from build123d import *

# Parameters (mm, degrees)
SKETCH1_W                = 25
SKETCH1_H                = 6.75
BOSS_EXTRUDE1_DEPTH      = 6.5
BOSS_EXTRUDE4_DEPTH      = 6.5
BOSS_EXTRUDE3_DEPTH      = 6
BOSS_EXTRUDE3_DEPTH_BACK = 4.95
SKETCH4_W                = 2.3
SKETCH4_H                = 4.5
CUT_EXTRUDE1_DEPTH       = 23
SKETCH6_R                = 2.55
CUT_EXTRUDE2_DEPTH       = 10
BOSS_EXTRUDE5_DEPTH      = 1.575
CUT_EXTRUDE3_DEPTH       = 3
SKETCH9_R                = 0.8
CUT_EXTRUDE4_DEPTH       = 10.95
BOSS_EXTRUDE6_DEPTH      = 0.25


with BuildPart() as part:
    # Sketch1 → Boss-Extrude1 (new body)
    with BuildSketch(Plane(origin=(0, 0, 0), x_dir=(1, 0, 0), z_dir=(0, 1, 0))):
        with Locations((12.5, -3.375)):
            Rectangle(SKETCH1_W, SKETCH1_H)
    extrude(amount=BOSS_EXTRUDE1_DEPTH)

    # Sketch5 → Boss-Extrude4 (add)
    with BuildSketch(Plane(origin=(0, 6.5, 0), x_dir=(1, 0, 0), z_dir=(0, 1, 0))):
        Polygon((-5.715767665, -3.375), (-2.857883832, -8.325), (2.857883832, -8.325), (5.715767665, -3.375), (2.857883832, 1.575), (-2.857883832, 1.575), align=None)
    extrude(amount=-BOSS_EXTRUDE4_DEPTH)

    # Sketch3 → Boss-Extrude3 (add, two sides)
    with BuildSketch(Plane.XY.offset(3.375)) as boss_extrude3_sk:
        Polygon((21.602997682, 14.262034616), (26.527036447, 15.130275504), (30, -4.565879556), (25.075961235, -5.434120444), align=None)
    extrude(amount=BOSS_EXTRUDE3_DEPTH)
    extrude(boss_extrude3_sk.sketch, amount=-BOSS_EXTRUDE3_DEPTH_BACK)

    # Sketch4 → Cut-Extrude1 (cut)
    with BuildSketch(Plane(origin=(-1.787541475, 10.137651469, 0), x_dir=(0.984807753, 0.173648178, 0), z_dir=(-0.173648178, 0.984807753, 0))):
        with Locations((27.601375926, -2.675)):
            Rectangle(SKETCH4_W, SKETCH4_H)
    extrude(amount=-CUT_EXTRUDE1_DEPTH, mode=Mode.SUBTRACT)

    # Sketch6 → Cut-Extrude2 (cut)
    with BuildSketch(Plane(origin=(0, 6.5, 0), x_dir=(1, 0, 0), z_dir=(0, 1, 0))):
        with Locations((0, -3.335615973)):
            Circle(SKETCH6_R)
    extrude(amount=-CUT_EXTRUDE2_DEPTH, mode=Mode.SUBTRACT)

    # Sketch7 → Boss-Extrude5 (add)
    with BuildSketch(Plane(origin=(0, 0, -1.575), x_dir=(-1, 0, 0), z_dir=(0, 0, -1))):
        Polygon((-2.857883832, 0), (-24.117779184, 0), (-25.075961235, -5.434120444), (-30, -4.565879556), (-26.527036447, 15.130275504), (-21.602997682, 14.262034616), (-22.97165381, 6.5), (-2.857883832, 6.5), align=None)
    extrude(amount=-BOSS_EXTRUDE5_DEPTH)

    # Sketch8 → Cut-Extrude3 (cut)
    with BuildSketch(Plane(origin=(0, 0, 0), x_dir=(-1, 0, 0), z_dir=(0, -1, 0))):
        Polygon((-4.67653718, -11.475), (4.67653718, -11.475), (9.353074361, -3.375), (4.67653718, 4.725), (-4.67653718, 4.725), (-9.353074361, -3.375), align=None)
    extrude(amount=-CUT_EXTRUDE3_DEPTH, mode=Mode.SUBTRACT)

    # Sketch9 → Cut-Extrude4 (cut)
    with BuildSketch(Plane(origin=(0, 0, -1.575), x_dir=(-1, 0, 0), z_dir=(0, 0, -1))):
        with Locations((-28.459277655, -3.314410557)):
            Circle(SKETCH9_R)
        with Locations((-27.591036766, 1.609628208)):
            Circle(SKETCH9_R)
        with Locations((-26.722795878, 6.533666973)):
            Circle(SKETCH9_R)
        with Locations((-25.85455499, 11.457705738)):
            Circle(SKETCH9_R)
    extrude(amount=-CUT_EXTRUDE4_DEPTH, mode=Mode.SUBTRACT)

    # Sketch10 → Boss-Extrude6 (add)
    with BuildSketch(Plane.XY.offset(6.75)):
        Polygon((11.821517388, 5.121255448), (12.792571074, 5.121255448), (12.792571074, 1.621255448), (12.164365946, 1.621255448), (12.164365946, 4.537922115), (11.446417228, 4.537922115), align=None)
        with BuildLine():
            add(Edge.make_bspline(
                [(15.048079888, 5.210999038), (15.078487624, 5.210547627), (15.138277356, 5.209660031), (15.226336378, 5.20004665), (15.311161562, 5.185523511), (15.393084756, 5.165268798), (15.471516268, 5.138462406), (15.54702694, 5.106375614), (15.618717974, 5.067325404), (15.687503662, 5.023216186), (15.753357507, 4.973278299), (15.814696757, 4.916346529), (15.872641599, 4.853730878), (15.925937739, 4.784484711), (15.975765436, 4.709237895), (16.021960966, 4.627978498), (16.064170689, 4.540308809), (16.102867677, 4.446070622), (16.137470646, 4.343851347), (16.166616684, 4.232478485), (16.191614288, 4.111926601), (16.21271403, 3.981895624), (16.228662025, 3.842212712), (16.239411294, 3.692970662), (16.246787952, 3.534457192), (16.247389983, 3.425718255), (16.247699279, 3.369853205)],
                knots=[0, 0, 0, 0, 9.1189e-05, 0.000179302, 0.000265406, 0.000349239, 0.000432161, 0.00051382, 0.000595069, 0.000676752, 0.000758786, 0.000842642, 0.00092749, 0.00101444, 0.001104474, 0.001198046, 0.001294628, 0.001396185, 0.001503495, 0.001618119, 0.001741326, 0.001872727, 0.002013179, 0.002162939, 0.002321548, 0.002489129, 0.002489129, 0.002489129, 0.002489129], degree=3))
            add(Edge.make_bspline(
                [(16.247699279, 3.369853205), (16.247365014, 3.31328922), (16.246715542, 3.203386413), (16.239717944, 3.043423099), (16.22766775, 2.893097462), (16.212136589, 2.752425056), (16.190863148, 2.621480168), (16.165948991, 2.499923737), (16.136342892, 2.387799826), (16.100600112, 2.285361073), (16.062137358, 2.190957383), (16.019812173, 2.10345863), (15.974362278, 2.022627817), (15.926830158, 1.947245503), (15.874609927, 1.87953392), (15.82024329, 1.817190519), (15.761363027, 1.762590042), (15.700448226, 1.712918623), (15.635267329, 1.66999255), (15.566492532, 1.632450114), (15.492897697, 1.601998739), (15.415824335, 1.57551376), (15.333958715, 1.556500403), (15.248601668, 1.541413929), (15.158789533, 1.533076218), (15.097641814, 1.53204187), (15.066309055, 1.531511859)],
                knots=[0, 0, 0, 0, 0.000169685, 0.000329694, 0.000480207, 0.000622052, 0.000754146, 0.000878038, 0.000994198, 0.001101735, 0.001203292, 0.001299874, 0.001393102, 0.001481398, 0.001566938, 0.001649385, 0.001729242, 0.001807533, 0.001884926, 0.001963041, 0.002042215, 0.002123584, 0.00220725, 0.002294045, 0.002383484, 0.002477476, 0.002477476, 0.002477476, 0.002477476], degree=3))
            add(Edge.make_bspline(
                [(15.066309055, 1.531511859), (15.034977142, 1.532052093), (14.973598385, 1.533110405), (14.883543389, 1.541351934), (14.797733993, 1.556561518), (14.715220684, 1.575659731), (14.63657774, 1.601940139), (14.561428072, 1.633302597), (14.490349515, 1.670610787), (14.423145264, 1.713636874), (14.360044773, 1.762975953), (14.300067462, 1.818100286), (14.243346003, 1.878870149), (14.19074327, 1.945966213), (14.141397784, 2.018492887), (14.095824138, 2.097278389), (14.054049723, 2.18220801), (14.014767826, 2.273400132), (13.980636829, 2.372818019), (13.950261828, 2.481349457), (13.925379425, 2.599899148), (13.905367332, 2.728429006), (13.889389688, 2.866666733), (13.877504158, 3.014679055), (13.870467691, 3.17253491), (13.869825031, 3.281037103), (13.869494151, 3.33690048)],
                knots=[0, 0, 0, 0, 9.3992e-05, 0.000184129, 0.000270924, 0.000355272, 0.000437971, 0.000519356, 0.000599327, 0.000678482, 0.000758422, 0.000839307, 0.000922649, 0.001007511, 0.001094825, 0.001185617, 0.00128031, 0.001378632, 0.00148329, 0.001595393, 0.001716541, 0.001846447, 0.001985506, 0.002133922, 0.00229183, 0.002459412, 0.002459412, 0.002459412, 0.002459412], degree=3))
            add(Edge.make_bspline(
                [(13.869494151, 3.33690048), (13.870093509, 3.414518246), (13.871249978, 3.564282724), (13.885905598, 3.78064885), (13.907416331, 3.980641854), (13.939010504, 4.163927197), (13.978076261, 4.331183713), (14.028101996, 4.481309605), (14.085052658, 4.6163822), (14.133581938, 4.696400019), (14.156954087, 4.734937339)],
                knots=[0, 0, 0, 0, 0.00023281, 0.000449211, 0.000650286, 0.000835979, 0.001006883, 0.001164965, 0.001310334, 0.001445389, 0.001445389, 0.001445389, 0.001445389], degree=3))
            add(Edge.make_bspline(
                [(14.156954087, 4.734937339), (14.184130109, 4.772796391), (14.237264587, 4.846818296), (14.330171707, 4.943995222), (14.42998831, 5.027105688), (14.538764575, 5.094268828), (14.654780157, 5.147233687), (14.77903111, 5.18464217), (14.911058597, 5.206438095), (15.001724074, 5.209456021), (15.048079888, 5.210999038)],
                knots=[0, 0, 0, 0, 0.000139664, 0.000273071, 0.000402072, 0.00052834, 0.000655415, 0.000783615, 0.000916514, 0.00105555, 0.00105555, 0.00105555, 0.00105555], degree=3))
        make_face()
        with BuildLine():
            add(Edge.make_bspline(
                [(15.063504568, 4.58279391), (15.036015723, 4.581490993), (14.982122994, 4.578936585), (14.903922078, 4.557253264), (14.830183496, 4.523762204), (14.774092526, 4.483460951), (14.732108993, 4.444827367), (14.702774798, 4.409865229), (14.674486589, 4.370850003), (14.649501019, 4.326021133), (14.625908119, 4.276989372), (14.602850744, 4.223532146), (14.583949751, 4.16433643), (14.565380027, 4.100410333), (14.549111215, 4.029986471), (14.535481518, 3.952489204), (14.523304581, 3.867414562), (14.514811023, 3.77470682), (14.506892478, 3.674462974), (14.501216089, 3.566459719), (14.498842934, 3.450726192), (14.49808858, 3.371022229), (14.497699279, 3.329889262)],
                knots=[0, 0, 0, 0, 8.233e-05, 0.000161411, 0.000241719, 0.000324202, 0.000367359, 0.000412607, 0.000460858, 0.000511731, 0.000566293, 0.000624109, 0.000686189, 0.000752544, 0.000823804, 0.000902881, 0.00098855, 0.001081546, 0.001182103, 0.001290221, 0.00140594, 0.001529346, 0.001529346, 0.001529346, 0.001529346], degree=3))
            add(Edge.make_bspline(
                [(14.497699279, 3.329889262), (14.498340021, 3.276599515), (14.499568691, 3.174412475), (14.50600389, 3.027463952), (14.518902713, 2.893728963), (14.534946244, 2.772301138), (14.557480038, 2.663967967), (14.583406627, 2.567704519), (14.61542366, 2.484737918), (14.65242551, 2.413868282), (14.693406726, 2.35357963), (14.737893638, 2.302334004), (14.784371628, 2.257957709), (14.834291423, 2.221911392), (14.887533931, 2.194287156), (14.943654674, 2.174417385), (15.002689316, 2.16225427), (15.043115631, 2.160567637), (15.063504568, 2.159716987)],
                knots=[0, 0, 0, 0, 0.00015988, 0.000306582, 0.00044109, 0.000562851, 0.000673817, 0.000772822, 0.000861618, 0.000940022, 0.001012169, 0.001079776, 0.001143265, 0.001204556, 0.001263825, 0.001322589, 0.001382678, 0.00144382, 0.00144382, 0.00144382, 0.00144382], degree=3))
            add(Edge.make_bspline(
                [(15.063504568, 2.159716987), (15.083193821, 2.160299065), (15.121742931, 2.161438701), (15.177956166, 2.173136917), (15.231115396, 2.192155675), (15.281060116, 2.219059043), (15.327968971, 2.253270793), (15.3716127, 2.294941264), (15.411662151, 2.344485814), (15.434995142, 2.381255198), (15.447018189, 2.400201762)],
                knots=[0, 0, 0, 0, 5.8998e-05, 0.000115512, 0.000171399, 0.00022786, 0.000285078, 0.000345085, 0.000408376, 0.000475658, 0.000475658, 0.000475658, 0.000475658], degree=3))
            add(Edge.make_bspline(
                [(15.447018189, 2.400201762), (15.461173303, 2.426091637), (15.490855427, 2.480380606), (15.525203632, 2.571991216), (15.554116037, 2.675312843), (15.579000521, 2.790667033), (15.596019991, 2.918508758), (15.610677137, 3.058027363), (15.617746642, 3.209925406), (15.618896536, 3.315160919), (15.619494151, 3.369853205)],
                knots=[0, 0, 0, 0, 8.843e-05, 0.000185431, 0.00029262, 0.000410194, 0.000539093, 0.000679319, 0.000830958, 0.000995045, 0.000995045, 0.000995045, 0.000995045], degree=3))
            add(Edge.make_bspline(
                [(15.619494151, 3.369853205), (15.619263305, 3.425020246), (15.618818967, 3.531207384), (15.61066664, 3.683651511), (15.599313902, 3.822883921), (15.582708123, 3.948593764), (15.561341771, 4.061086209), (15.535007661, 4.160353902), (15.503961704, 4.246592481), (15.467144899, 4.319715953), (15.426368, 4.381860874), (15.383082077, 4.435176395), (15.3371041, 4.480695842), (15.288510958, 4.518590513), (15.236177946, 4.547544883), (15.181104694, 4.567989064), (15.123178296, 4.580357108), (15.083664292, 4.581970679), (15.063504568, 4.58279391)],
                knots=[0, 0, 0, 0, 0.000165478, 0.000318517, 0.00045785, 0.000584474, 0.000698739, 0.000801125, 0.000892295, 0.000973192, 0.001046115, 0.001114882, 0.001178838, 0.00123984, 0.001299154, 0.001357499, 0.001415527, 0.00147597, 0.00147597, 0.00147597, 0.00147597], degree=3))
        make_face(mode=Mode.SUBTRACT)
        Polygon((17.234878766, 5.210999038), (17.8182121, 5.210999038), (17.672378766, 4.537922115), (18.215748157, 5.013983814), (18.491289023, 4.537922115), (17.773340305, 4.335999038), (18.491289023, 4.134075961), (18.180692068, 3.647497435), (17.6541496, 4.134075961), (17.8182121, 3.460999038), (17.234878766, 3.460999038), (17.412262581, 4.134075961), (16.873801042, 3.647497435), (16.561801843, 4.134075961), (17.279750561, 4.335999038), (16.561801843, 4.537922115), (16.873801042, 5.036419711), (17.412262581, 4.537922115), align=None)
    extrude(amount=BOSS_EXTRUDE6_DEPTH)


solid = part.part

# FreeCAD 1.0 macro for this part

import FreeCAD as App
import Part
import Sketcher

V = App.Vector
Q = App.Units.Quantity

doc = App.newDocument("Part")
body = doc.addObject("PartDesign::Body", "Body")

# Sketch on XZ plane
sketch1 = body.newObject("Sketcher::SketchObject", "Sketch")
sketch1.AttachmentSupport = (doc.getObject("XZ_Plane"), [""])
sketch1.MapMode = "FlatFace"
sketch1.addGeometry([
    Part.LineSegment(V(0, 0, 0), V(0, 7, 0)),
    Part.LineSegment(V(0, 7, 0), V(25, 7, 0)),
    Part.LineSegment(V(25, 7, 0), V(25, 0, 0)),
    Part.LineSegment(V(25, 0, 0), V(0, 0, 0)),
], False)
sketch1.addConstraint([
    Sketcher.Constraint("Coincident", 0, 2, 1, 1),
    Sketcher.Constraint("Coincident", 1, 2, 2, 1),
    Sketcher.Constraint("Coincident", 2, 2, 3, 1),
    Sketcher.Constraint("Coincident", 3, 2, 0, 1),
    Sketcher.Constraint("Vertical", 0),
    Sketcher.Constraint("Horizontal", 1),
    Sketcher.Constraint("Vertical", 2),
    Sketcher.Constraint("Horizontal", 3),
    Sketcher.Constraint("Coincident", 3, 2, -1, 1),
    Sketcher.Constraint("DistanceX", 1, 1, 1, 2, 25.0),
    Sketcher.Constraint("DistanceY", 0, 1, 0, 2, 6.75),
])
pad1 = body.newObject("PartDesign::Pad", "Pad")
pad1.Profile = sketch1
pad1.Length = 6.5
pad1.Reversed = True

# Sketch on XZ plane
sketch2 = body.newObject("Sketcher::SketchObject", "Sketch001")
sketch2.AttachmentSupport = (doc.getObject("XZ_Plane"), [""])
sketch2.MapMode = "FlatFace"
sketch2.AttachmentOffset = App.Placement(V(0, 0, -6.5), App.Rotation())
sketch2.addGeometry([
    Part.LineSegment(V(-6, 3, 0), V(-3, 8, 0)),  # 0
    Part.LineSegment(V(-3, 8, 0), V(3, 8, 0)),  # 1
    Part.LineSegment(V(3, 8, 0), V(6, 3, 0)),  # 2
    Part.LineSegment(V(6, 3, 0), V(3, -2, 0)),  # 3
    Part.LineSegment(V(3, -2, 0), V(-3, -2, 0)),  # 4
    Part.LineSegment(V(-3, -2, 0), V(-6, 3, 0)),  # 5
], False)
sketch2.addConstraint([
    Sketcher.Constraint("Coincident", 0, 2, 1, 1),
    Sketcher.Constraint("Coincident", 1, 2, 2, 1),
    Sketcher.Constraint("Coincident", 2, 2, 3, 1),
    Sketcher.Constraint("Coincident", 3, 2, 4, 1),
    Sketcher.Constraint("Coincident", 4, 2, 5, 1),
    Sketcher.Constraint("Coincident", 5, 2, 0, 1),
    Sketcher.Constraint("Horizontal", 1),
    Sketcher.Constraint("Horizontal", 4),
    Sketcher.Constraint("Symmetric", 2, 2, 5, 2, -2),
    Sketcher.Constraint("Parallel", 0, 3),
    Sketcher.Constraint("Parallel", 2, 5),
    Sketcher.Constraint("Vertical", 1, 2, 3, 2),
    Sketcher.Constraint("Vertical", 0, 2, 4, 2),
    Sketcher.Constraint("Angle", 0, Q("60 deg")),
    Sketcher.Constraint("DistanceY", 3, 2, 1, 2, 9.9),
    Sketcher.Constraint("DistanceY", -1, 1, 0, 2, 8.325),
    Sketcher.Constraint("DistanceX", 1, 1, 1, 2, 5.715768),
])
pad2 = body.newObject("PartDesign::Pad", "Pad001")
pad2.Profile = sketch2
pad2.Length = 6.5

# Sketch on XY plane
sketch3 = body.newObject("Sketcher::SketchObject", "Sketch002")
sketch3.AttachmentSupport = (doc.getObject("XY_Plane"), [""])
sketch3.MapMode = "FlatFace"
sketch3.AttachmentOffset = App.Placement(V(0, 0, 3.375), App.Rotation())
sketch3.addGeometry([
    Part.LineSegment(V(26.5, 15.1, 0), V(21.6, 14.3, 0)),
    Part.LineSegment(V(21.6, 14.3, 0), V(25.1, -5.4, 0)),
    Part.LineSegment(V(25.1, -5.4, 0), V(30, -4.6, 0)),
    Part.LineSegment(V(30, -4.6, 0), V(26.5, 15.1, 0)),
], False)
sketch3.addConstraint([
    Sketcher.Constraint("Coincident", 0, 2, 1, 1),
    Sketcher.Constraint("Coincident", 1, 2, 2, 1),
    Sketcher.Constraint("Coincident", 2, 2, 3, 1),
    Sketcher.Constraint("Coincident", 3, 2, 0, 1),
    Sketcher.Constraint("Perpendicular", 0, 1),
    Sketcher.Constraint("Perpendicular", 1, 2),
    Sketcher.Constraint("Perpendicular", 2, 3),
    Sketcher.Constraint("Angle", 0, Q("-170 deg")),
    Sketcher.Constraint("Distance", 0, 5.0),
    Sketcher.Constraint("Distance", 1, 20.0),
    Sketcher.Constraint("DistanceX", -1, 1, 2, 2, 30.0),
    Sketcher.Constraint("DistanceY", 1, 2, -1, 1, 5.43412),
])
pad3 = body.newObject("PartDesign::Pad", "Pad002")
pad3.Profile = sketch3
pad3.Type = "TwoLengths"
pad3.Length = 6
pad3.Length2 = 4.95

# Sketch on an angled plane
sketch4 = body.newObject("Sketcher::SketchObject", "Sketch003")
sketch4.Placement = App.Placement(V(-1.787541, 10.137651, 0), App.Rotation(V(0.984807753, 0.173648178, 0), V(0, 0, -1), V(-0.173648178, 0.984807753, 0), "ZXY"))
sketch4.addGeometry([
    Part.LineSegment(V(26.5, -0.4, 0), V(26.5, -4.9, 0)),
    Part.LineSegment(V(26.5, -4.9, 0), V(28.8, -4.9, 0)),
    Part.LineSegment(V(28.8, -4.9, 0), V(28.8, -0.4, 0)),
    Part.LineSegment(V(28.8, -0.4, 0), V(26.5, -0.4, 0)),
], False)
sketch4.addConstraint([
    Sketcher.Constraint("Coincident", 0, 2, 1, 1),
    Sketcher.Constraint("Coincident", 1, 2, 2, 1),
    Sketcher.Constraint("Coincident", 2, 2, 3, 1),
    Sketcher.Constraint("Coincident", 3, 2, 0, 1),
    Sketcher.Constraint("Vertical", 0),
    Sketcher.Constraint("Horizontal", 1),
    Sketcher.Constraint("Vertical", 2),
    Sketcher.Constraint("Horizontal", 3),
    Sketcher.Constraint("DistanceX", 1, 1, 1, 2, 2.3),
    Sketcher.Constraint("DistanceY", 0, 2, 0, 1, 4.5),
    Sketcher.Constraint("DistanceY", 0, 2, -1, 1, 4.925),
    Sketcher.Constraint("DistanceX", -1, 1, 0, 2, 26.451376),
])
pocket1 = body.newObject("PartDesign::Pocket", "Pocket")
pocket1.Profile = sketch4
pocket1.Length = 23

# Sketch on XZ plane
sketch5 = body.newObject("Sketcher::SketchObject", "Sketch004")
sketch5.AttachmentSupport = (doc.getObject("XZ_Plane"), [""])
sketch5.MapMode = "FlatFace"
sketch5.AttachmentOffset = App.Placement(V(0, 0, -6.5), App.Rotation())
sketch5.addGeometry(Part.Circle(V(0, 3.3, 0), V(0, 0, 1), 2.5), False)
sketch5.addConstraint([
    Sketcher.Constraint("PointOnObject", 0, 3, -2),
    Sketcher.Constraint("Diameter", 0, 5.1),
    Sketcher.Constraint("DistanceY", -1, 1, 0, 3, 3.335616),
])
pocket2 = body.newObject("PartDesign::Pocket", "Pocket001")
pocket2.Profile = sketch5
pocket2.Length = 10
pocket2.Reversed = True

# Sketch on XY plane
sketch6 = body.newObject("Sketcher::SketchObject", "Sketch005")
sketch6.AttachmentSupport = (doc.getObject("XY_Plane"), [""])
sketch6.MapMode = "FlatFace"
sketch6.AttachmentOffset = App.Placement(V(0, 0, -1.575), App.Rotation())
sketch6.addGeometry([
    Part.LineSegment(V(24.1, 0, 0), V(2.9, 0, 0)),  # 0
    Part.LineSegment(V(2.9, 0, 0), V(2.9, 6.5, 0)),  # 1
    Part.LineSegment(V(2.9, 6.5, 0), V(23, 6.5, 0)),  # 2
    Part.LineSegment(V(23, 6.5, 0), V(21.6, 14.3, 0)),  # 3
    Part.LineSegment(V(21.6, 14.3, 0), V(26.5, 15.1, 0)),  # 4
    Part.LineSegment(V(26.5, 15.1, 0), V(30, -4.6, 0)),  # 5
    Part.LineSegment(V(30, -4.6, 0), V(25.1, -5.4, 0)),  # 6
    Part.LineSegment(V(25.1, -5.4, 0), V(24.1, 0, 0)),  # 7
], False)
sketch6.addConstraint([
    Sketcher.Constraint("Coincident", 0, 2, 1, 1),
    Sketcher.Constraint("Coincident", 1, 2, 2, 1),
    Sketcher.Constraint("Coincident", 2, 2, 3, 1),
    Sketcher.Constraint("Coincident", 3, 2, 4, 1),
    Sketcher.Constraint("Coincident", 4, 2, 5, 1),
    Sketcher.Constraint("Coincident", 5, 2, 6, 1),
    Sketcher.Constraint("Coincident", 6, 2, 7, 1),
    Sketcher.Constraint("Coincident", 7, 2, 0, 1),
    Sketcher.Constraint("Horizontal", 0),
    Sketcher.Constraint("Vertical", 1),
    Sketcher.Constraint("Horizontal", 2),
    Sketcher.Constraint("PointOnObject", 0, 2, -1),
    Sketcher.Constraint("Perpendicular", 3, 4),
    Sketcher.Constraint("Perpendicular", 4, 5),
    Sketcher.Constraint("Perpendicular", 5, 6),
    Sketcher.Constraint("Perpendicular", 6, 7),
    Sketcher.Constraint("Equal", 4, 6),
    Sketcher.Constraint("Angle", 3, Q("100 deg")),
    Sketcher.Constraint("Distance", 4, 5.0),
    Sketcher.Constraint("Distance", 5, 20.0),
    Sketcher.Constraint("DistanceY", 1, 1, 1, 2, 6.5),
    Sketcher.Constraint("DistanceX", -1, 1, 5, 2, 30.0),
    Sketcher.Constraint("DistanceX", 2, 1, 2, 2, 20.11377),
    Sketcher.Constraint("Distance", 7, 5.517951),
])
pad4 = body.newObject("PartDesign::Pad", "Pad003")
pad4.Profile = sketch6
pad4.Length = 1.575

# Sketch on XZ plane
sketch7 = body.newObject("Sketcher::SketchObject", "Sketch006")
sketch7.AttachmentSupport = (doc.getObject("XZ_Plane"), [""])
sketch7.MapMode = "FlatFace"
sketch7.addGeometry([
    Part.LineSegment(V(5, 11, 0), V(-5, 11, 0)),  # 0
    Part.LineSegment(V(-5, 11, 0), V(-9, 3, 0)),  # 1
    Part.LineSegment(V(-9, 3, 0), V(-5, -5, 0)),  # 2
    Part.LineSegment(V(-5, -5, 0), V(5, -5, 0)),  # 3
    Part.LineSegment(V(5, -5, 0), V(9, 3, 0)),  # 4
    Part.LineSegment(V(9, 3, 0), V(5, 11, 0)),  # 5
], False)
sketch7.addConstraint([
    Sketcher.Constraint("Coincident", 0, 2, 1, 1),
    Sketcher.Constraint("Coincident", 1, 2, 2, 1),
    Sketcher.Constraint("Coincident", 2, 2, 3, 1),
    Sketcher.Constraint("Coincident", 3, 2, 4, 1),
    Sketcher.Constraint("Coincident", 4, 2, 5, 1),
    Sketcher.Constraint("Coincident", 5, 2, 0, 1),
    Sketcher.Constraint("Horizontal", 0),
    Sketcher.Constraint("Horizontal", 3),
    Sketcher.Constraint("Symmetric", 1, 2, 4, 2, -2),
    Sketcher.Constraint("Parallel", 1, 4),
    Sketcher.Constraint("Parallel", 2, 5),
    Sketcher.Constraint("Vertical", 0, 2, 2, 2),
    Sketcher.Constraint("Vertical", 3, 2, 5, 2),
    Sketcher.Constraint("Angle", 1, Q("-120 deg")),
    Sketcher.Constraint("DistanceY", 1, 2, 0, 2, 8.1),
    Sketcher.Constraint("DistanceY", -1, 1, 0, 2, 11.475),
    Sketcher.Constraint("DistanceX", 0, 2, 0, 1, 9.353074),
])
pocket3 = body.newObject("PartDesign::Pocket", "Pocket002")
pocket3.Profile = sketch7
pocket3.Length = 3

# Sketch on XY plane
sketch8 = body.newObject("Sketcher::SketchObject", "Sketch007")
sketch8.AttachmentSupport = (doc.getObject("XY_Plane"), [""])
sketch8.MapMode = "FlatFace"
sketch8.AttachmentOffset = App.Placement(V(0, 0, -1.575), App.Rotation())
sketch8.addGeometry([
    Part.Circle(V(28.5, -3.3, 0), V(0, 0, 1), 0.8),
    Part.Circle(V(27.6, 1.6, 0), V(0, 0, 1), 0.8),
    Part.Circle(V(26.7, 6.5, 0), V(0, 0, 1), 0.8),
    Part.Circle(V(25.9, 11.5, 0), V(0, 0, 1), 0.8),
], False)
sketch8.addConstraint([
    Sketcher.Constraint("Equal", 0, 1),
    Sketcher.Constraint("Equal", 1, 2),
    Sketcher.Constraint("Equal", 2, 3),
    Sketcher.Constraint("Diameter", 0, 1.6),
    Sketcher.Constraint("DistanceY", 0, 3, -1, 1, 3.314411),
    Sketcher.Constraint("DistanceY", -1, 1, 1, 3, 1.609628),
    Sketcher.Constraint("DistanceX", 1, 3, 0, 3, 0.868241),
    Sketcher.Constraint("DistanceX", 2, 3, 1, 3, 0.868241),
    Sketcher.Constraint("DistanceY", 1, 3, 2, 3, 4.924039),
    Sketcher.Constraint("DistanceX", 3, 3, 2, 3, 0.868241),
    Sketcher.Constraint("DistanceY", 2, 3, 3, 3, 4.924039),
    Sketcher.Constraint("DistanceX", -1, 1, 0, 3, 28.459278),
])
pocket4 = body.newObject("PartDesign::Pocket", "Pocket003")
pocket4.Profile = sketch8
pocket4.Length = 10.95
pocket4.Reversed = True

# Sketch on XY plane
sketch9 = body.newObject("Sketcher::SketchObject", "Sketch008")
sketch9.AttachmentSupport = (doc.getObject("XY_Plane"), [""])
sketch9.MapMode = "FlatFace"
sketch9.AttachmentOffset = App.Placement(V(0, 0, 6.75), App.Rotation())
sketch9.addGeometry([
    Part.LineSegment(V(12.792571, 5.121255, 0), V(11.821517, 5.121255, 0)),  # 0
    Part.LineSegment(V(11.821517, 5.121255, 0), V(11.446417, 4.537922, 0)),  # 1
    Part.LineSegment(V(11.446417, 4.537922, 0), V(12.164366, 4.537922, 0)),  # 2
    Part.LineSegment(V(12.164366, 4.537922, 0), V(12.164366, 1.621255, 0)),  # 3
    Part.LineSegment(V(12.164366, 1.621255, 0), V(12.792571, 1.621255, 0)),  # 4
    Part.LineSegment(V(12.792571, 1.621255, 0), V(12.792571, 5.121255, 0)),  # 5
    Part.BSplineCurve([V(15.04808, 5.210999, 0), V(15.078488, 5.210548, 0), V(15.138277, 5.20966, 0), V(15.226336, 5.200047, 0), V(15.311162, 5.185524, 0), V(15.393085, 5.165269, 0), V(15.471516, 5.138462, 0), V(15.547027, 5.106376, 0), V(15.618718, 5.067325, 0), V(15.687504, 5.023216, 0), V(15.753358, 4.973278, 0), V(15.814697, 4.916347, 0), V(15.872642, 4.853731, 0), V(15.925938, 4.784485, 0), V(15.975765, 4.709238, 0), V(16.021961, 4.627978, 0), V(16.064171, 4.540309, 0), V(16.102868, 4.446071, 0), V(16.137471, 4.343851, 0), V(16.166617, 4.232478, 0), V(16.191614, 4.111927, 0), V(16.212714, 3.981896, 0), V(16.228662, 3.842213, 0), V(16.239411, 3.692971, 0), V(16.246788, 3.534457, 0), V(16.24739, 3.425718, 0), V(16.247699, 3.369853, 0)], [4, 1, 1, 1, 1, 1, 1, 1, 1, 1, 1, 1, 1, 1, 1, 1, 1, 1, 1, 1, 1, 1, 1, 1, 4], [0, 0.000091189, 0.000179302, 0.000265406, 0.000349239, 0.000432161, 0.00051382, 0.000595069, 0.000676752, 0.000758786, 0.000842642, 0.00092749, 0.00101444, 0.001104474, 0.001198046, 0.001294628, 0.001396185, 0.001503495, 0.001618119, 0.001741326, 0.001872727, 0.002013179, 0.002162939, 0.002321548, 0.002489129], False, 3, [1, 1, 1, 1, 1, 1, 1, 1, 1, 1, 1, 1, 1, 1, 1, 1, 1, 1, 1, 1, 1, 1, 1, 1, 1, 1, 1], False),  # 6
    Part.BSplineCurve([V(14.156954, 4.734937, 0), V(14.18413, 4.772796, 0), V(14.237265, 4.846818, 0), V(14.330172, 4.943995, 0), V(14.429988, 5.027106, 0), V(14.538765, 5.094269, 0), V(14.65478, 5.147234, 0), V(14.779031, 5.184642, 0), V(14.911059, 5.206438, 0), V(15.001724, 5.209456, 0), V(15.04808, 5.210999, 0)], [4, 1, 1, 1, 1, 1, 1, 1, 4], [0, 0.000139664, 0.000273071, 0.000402072, 0.00052834, 0.000655415, 0.000783615, 0.000916514, 0.00105555], False, 3, [1, 1, 1, 1, 1, 1, 1, 1, 1, 1, 1], False),  # 7
    Part.BSplineCurve([V(13.869494, 3.3369, 0), V(13.870094, 3.414518, 0), V(13.87125, 3.564283, 0), V(13.885906, 3.780649, 0), V(13.907416, 3.980642, 0), V(13.939011, 4.163927, 0), V(13.978076, 4.331184, 0), V(14.028102, 4.48131, 0), V(14.085053, 4.616382, 0), V(14.133582, 4.6964, 0), V(14.156954, 4.734937, 0)], [4, 1, 1, 1, 1, 1, 1, 1, 4], [0, 0.00023281, 0.000449211, 0.000650286, 0.000835979, 0.001006883, 0.001164965, 0.001310334, 0.001445389], False, 3, [1, 1, 1, 1, 1, 1, 1, 1, 1, 1, 1], False),  # 8
    Part.BSplineCurve([V(15.066309, 1.531512, 0), V(15.034977, 1.532052, 0), V(14.973598, 1.53311, 0), V(14.883543, 1.541352, 0), V(14.797734, 1.556562, 0), V(14.715221, 1.57566, 0), V(14.636578, 1.60194, 0), V(14.561428, 1.633303, 0), V(14.49035, 1.670611, 0), V(14.423145, 1.713637, 0), V(14.360045, 1.762976, 0), V(14.300067, 1.8181, 0), V(14.243346, 1.87887, 0), V(14.190743, 1.945966, 0), V(14.141398, 2.018493, 0), V(14.095824, 2.097278, 0), V(14.05405, 2.182208, 0), V(14.014768, 2.2734, 0), V(13.980637, 2.372818, 0), V(13.950262, 2.481349, 0), V(13.925379, 2.599899, 0), V(13.905367, 2.728429, 0), V(13.88939, 2.866667, 0), V(13.877504, 3.014679, 0), V(13.870468, 3.172535, 0), V(13.869825, 3.281037, 0), V(13.869494, 3.3369, 0)], [4, 1, 1, 1, 1, 1, 1, 1, 1, 1, 1, 1, 1, 1, 1, 1, 1, 1, 1, 1, 1, 1, 1, 1, 4], [0, 0.000093992, 0.000184129, 0.000270924, 0.000355272, 0.000437971, 0.000519356, 0.000599327, 0.000678482, 0.000758422, 0.000839307, 0.000922649, 0.001007511, 0.001094825, 0.001185617, 0.00128031, 0.001378632, 0.00148329, 0.001595393, 0.001716541, 0.001846447, 0.001985506, 0.002133922, 0.00229183, 0.002459412], False, 3, [1, 1, 1, 1, 1, 1, 1, 1, 1, 1, 1, 1, 1, 1, 1, 1, 1, 1, 1, 1, 1, 1, 1, 1, 1, 1, 1], False),  # 9
    Part.BSplineCurve([V(16.247699, 3.369853, 0), V(16.247365, 3.313289, 0), V(16.246716, 3.203386, 0), V(16.239718, 3.043423, 0), V(16.227668, 2.893097, 0), V(16.212137, 2.752425, 0), V(16.190863, 2.62148, 0), V(16.165949, 2.499924, 0), V(16.136343, 2.3878, 0), V(16.1006, 2.285361, 0), V(16.062137, 2.190957, 0), V(16.019812, 2.103459, 0), V(15.974362, 2.022628, 0), V(15.92683, 1.947246, 0), V(15.87461, 1.879534, 0), V(15.820243, 1.817191, 0), V(15.761363, 1.76259, 0), V(15.700448, 1.712919, 0), V(15.635267, 1.669993, 0), V(15.566493, 1.63245, 0), V(15.492898, 1.601999, 0), V(15.415824, 1.575514, 0), V(15.333959, 1.5565, 0), V(15.248602, 1.541414, 0), V(15.15879, 1.533076, 0), V(15.097642, 1.532042, 0), V(15.066309, 1.531512, 0)], [4, 1, 1, 1, 1, 1, 1, 1, 1, 1, 1, 1, 1, 1, 1, 1, 1, 1, 1, 1, 1, 1, 1, 1, 4], [0, 0.000169685, 0.000329694, 0.000480207, 0.000622052, 0.000754146, 0.000878038, 0.000994198, 0.001101735, 0.001203292, 0.001299874, 0.001393102, 0.001481398, 0.001566938, 0.001649385, 0.001729242, 0.001807533, 0.001884926, 0.001963041, 0.002042215, 0.002123584, 0.00220725, 0.002294045, 0.002383484, 0.002477476], False, 3, [1, 1, 1, 1, 1, 1, 1, 1, 1, 1, 1, 1, 1, 1, 1, 1, 1, 1, 1, 1, 1, 1, 1, 1, 1, 1, 1], False),  # 10
    Part.BSplineCurve([V(15.619494, 3.369853, 0), V(15.619263, 3.42502, 0), V(15.618819, 3.531207, 0), V(15.610667, 3.683652, 0), V(15.599314, 3.822884, 0), V(15.582708, 3.948594, 0), V(15.561342, 4.061086, 0), V(15.535008, 4.160354, 0), V(15.503962, 4.246592, 0), V(15.467145, 4.319716, 0), V(15.426368, 4.381861, 0), V(15.383082, 4.435176, 0), V(15.337104, 4.480696, 0), V(15.288511, 4.518591, 0), V(15.236178, 4.547545, 0), V(15.181105, 4.567989, 0), V(15.123178, 4.580357, 0), V(15.083664, 4.581971, 0), V(15.063505, 4.582794, 0)], [4, 1, 1, 1, 1, 1, 1, 1, 1, 1, 1, 1, 1, 1, 1, 1, 4], [0, 0.000165478, 0.000318517, 0.00045785, 0.000584474, 0.000698739, 0.000801125, 0.000892295, 0.000973192, 0.001046115, 0.001114882, 0.001178838, 0.00123984, 0.001299154, 0.001357499, 0.001415527, 0.00147597], False, 3, [1, 1, 1, 1, 1, 1, 1, 1, 1, 1, 1, 1, 1, 1, 1, 1, 1, 1, 1], False),  # 11
    Part.BSplineCurve([V(15.447018, 2.400202, 0), V(15.461173, 2.426092, 0), V(15.490855, 2.480381, 0), V(15.525204, 2.571991, 0), V(15.554116, 2.675313, 0), V(15.579001, 2.790667, 0), V(15.59602, 2.918509, 0), V(15.610677, 3.058027, 0), V(15.617747, 3.209925, 0), V(15.618897, 3.315161, 0), V(15.619494, 3.369853, 0)], [4, 1, 1, 1, 1, 1, 1, 1, 4], [0, 0.00008843, 0.000185431, 0.00029262, 0.000410194, 0.000539093, 0.000679319, 0.000830958, 0.000995045], False, 3, [1, 1, 1, 1, 1, 1, 1, 1, 1, 1, 1], False),  # 12
    Part.BSplineCurve([V(15.063505, 2.159717, 0), V(15.083194, 2.160299, 0), V(15.121743, 2.161439, 0), V(15.177956, 2.173137, 0), V(15.231115, 2.192156, 0), V(15.28106, 2.219059, 0), V(15.327969, 2.253271, 0), V(15.371613, 2.294941, 0), V(15.411662, 2.344486, 0), V(15.434995, 2.381255, 0), V(15.447018, 2.400202, 0)], [4, 1, 1, 1, 1, 1, 1, 1, 4], [0, 0.000058998, 0.000115512, 0.000171399, 0.00022786, 0.000285078, 0.000345085, 0.000408376, 0.000475658], False, 3, [1, 1, 1, 1, 1, 1, 1, 1, 1, 1, 1], False),  # 13
    Part.BSplineCurve([V(14.497699, 3.329889, 0), V(14.49834, 3.2766, 0), V(14.499569, 3.174412, 0), V(14.506004, 3.027464, 0), V(14.518903, 2.893729, 0), V(14.534946, 2.772301, 0), V(14.55748, 2.663968, 0), V(14.583407, 2.567705, 0), V(14.615424, 2.484738, 0), V(14.652426, 2.413868, 0), V(14.693407, 2.35358, 0), V(14.737894, 2.302334, 0), V(14.784372, 2.257958, 0), V(14.834291, 2.221911, 0), V(14.887534, 2.194287, 0), V(14.943655, 2.174417, 0), V(15.002689, 2.162254, 0), V(15.043116, 2.160568, 0), V(15.063505, 2.159717, 0)], [4, 1, 1, 1, 1, 1, 1, 1, 1, 1, 1, 1, 1, 1, 1, 1, 4], [0, 0.00015988, 0.000306582, 0.00044109, 0.000562851, 0.000673817, 0.000772822, 0.000861618, 0.000940022, 0.001012169, 0.001079776, 0.001143265, 0.001204556, 0.001263825, 0.001322589, 0.001382678, 0.00144382], False, 3, [1, 1, 1, 1, 1, 1, 1, 1, 1, 1, 1, 1, 1, 1, 1, 1, 1, 1, 1], False),  # 14
    Part.BSplineCurve([V(15.063505, 4.582794, 0), V(15.036016, 4.581491, 0), V(14.982123, 4.578937, 0), V(14.903922, 4.557253, 0), V(14.830183, 4.523762, 0), V(14.774093, 4.483461, 0), V(14.732109, 4.444827, 0), V(14.702775, 4.409865, 0), V(14.674487, 4.37085, 0), V(14.649501, 4.326021, 0), V(14.625908, 4.276989, 0), V(14.602851, 4.223532, 0), V(14.58395, 4.164336, 0), V(14.56538, 4.10041, 0), V(14.549111, 4.029986, 0), V(14.535482, 3.952489, 0), V(14.523305, 3.867415, 0), V(14.514811, 3.774707, 0), V(14.506892, 3.674463, 0), V(14.501216, 3.56646, 0), V(14.498843, 3.450726, 0), V(14.498089, 3.371022, 0), V(14.497699, 3.329889, 0)], [4, 1, 1, 1, 1, 1, 1, 1, 1, 1, 1, 1, 1, 1, 1, 1, 1, 1, 1, 1, 4], [0, 0.00008233, 0.000161411, 0.000241719, 0.000324202, 0.000367359, 0.000412607, 0.000460858, 0.000511731, 0.000566293, 0.000624109, 0.000686189, 0.000752544, 0.000823804, 0.000902881, 0.00098855, 0.001081546, 0.001182103, 0.001290221, 0.00140594, 0.001529346], False, 3, [1, 1, 1, 1, 1, 1, 1, 1, 1, 1, 1, 1, 1, 1, 1, 1, 1, 1, 1, 1, 1, 1, 1], False),  # 15
    Part.LineSegment(V(17.818212, 5.210999, 0), V(17.234879, 5.210999, 0)),  # 16
    Part.LineSegment(V(17.234879, 5.210999, 0), V(17.412263, 4.537922, 0)),  # 17
    Part.LineSegment(V(17.412263, 4.537922, 0), V(16.873801, 5.03642, 0)),  # 18
    Part.LineSegment(V(16.873801, 5.03642, 0), V(16.561802, 4.537922, 0)),  # 19
    Part.LineSegment(V(16.561802, 4.537922, 0), V(17.279751, 4.335999, 0)),  # 20
    Part.LineSegment(V(17.279751, 4.335999, 0), V(16.561802, 4.134076, 0)),  # 21
    Part.LineSegment(V(16.561802, 4.134076, 0), V(16.873801, 3.647497, 0)),  # 22
    Part.LineSegment(V(16.873801, 3.647497, 0), V(17.412263, 4.134076, 0)),  # 23
    Part.LineSegment(V(17.412263, 4.134076, 0), V(17.234879, 3.460999, 0)),  # 24
    Part.LineSegment(V(17.234879, 3.460999, 0), V(17.818212, 3.460999, 0)),  # 25
    Part.LineSegment(V(17.818212, 3.460999, 0), V(17.65415, 4.134076, 0)),  # 26
    Part.LineSegment(V(17.65415, 4.134076, 0), V(18.180692, 3.647497, 0)),  # 27
    Part.LineSegment(V(18.180692, 3.647497, 0), V(18.491289, 4.134076, 0)),  # 28
    Part.LineSegment(V(18.491289, 4.134076, 0), V(17.77334, 4.335999, 0)),  # 29
    Part.LineSegment(V(17.77334, 4.335999, 0), V(18.491289, 4.537922, 0)),  # 30
    Part.LineSegment(V(18.491289, 4.537922, 0), V(18.215748, 5.013984, 0)),  # 31
    Part.LineSegment(V(18.215748, 5.013984, 0), V(17.672379, 4.537922, 0)),  # 32
    Part.LineSegment(V(17.672379, 4.537922, 0), V(17.818212, 5.210999, 0)),  # 33
], False)
sketch9.addConstraint([
    Sketcher.Constraint("Block", 6),
    Sketcher.Constraint("Block", 7),
    Sketcher.Constraint("Block", 8),
    Sketcher.Constraint("Block", 9),
    Sketcher.Constraint("Block", 10),
    Sketcher.Constraint("Block", 11),
    Sketcher.Constraint("Block", 12),
    Sketcher.Constraint("Block", 13),
    Sketcher.Constraint("Block", 14),
    Sketcher.Constraint("Block", 15),
    Sketcher.Constraint("Coincident", 0, 2, 1, 1),
    Sketcher.Constraint("Coincident", 1, 2, 2, 1),
    Sketcher.Constraint("Coincident", 2, 2, 3, 1),
    Sketcher.Constraint("Coincident", 3, 2, 4, 1),
    Sketcher.Constraint("Coincident", 4, 2, 5, 1),
    Sketcher.Constraint("Coincident", 5, 2, 0, 1),
    Sketcher.Constraint("Coincident", 16, 2, 17, 1),
    Sketcher.Constraint("Coincident", 17, 2, 18, 1),
    Sketcher.Constraint("Coincident", 18, 2, 19, 1),
    Sketcher.Constraint("Coincident", 19, 2, 20, 1),
    Sketcher.Constraint("Coincident", 20, 2, 21, 1),
    Sketcher.Constraint("Coincident", 21, 2, 22, 1),
    Sketcher.Constraint("Coincident", 22, 2, 23, 1),
    Sketcher.Constraint("Coincident", 23, 2, 24, 1),
    Sketcher.Constraint("Coincident", 24, 2, 25, 1),
    Sketcher.Constraint("Coincident", 25, 2, 26, 1),
    Sketcher.Constraint("Coincident", 26, 2, 27, 1),
    Sketcher.Constraint("Coincident", 27, 2, 28, 1),
    Sketcher.Constraint("Coincident", 28, 2, 29, 1),
    Sketcher.Constraint("Coincident", 29, 2, 30, 1),
    Sketcher.Constraint("Coincident", 30, 2, 31, 1),
    Sketcher.Constraint("Coincident", 31, 2, 32, 1),
    Sketcher.Constraint("Coincident", 32, 2, 33, 1),
    Sketcher.Constraint("Coincident", 33, 2, 16, 1),
    Sketcher.Constraint("Horizontal", 0),
    Sketcher.Constraint("Horizontal", 2),
    Sketcher.Constraint("Vertical", 3),
    Sketcher.Constraint("Horizontal", 4),
    Sketcher.Constraint("Vertical", 5),
    Sketcher.Constraint("Horizontal", 16),
    Sketcher.Constraint("Horizontal", 25),
    Sketcher.Constraint("Parallel", 20, 29),
    Sketcher.Constraint("Parallel", 21, 30),
    Sketcher.Constraint("Horizontal", 2, 2, 17, 2),
    Sketcher.Constraint("Horizontal", 17, 2, 19, 2),
    Sketcher.Constraint("Horizontal", 21, 2, 23, 2),
    Sketcher.Constraint("Horizontal", 23, 2, 26, 2),
    Sketcher.Constraint("Horizontal", 22, 2, 27, 2),
    Sketcher.Constraint("Horizontal", 26, 2, 28, 2),
    Sketcher.Constraint("Horizontal", 20, 2, 29, 2),
    Sketcher.Constraint("Horizontal", 19, 2, 30, 2),
    Sketcher.Constraint("Horizontal", 30, 2, 32, 2),
    Sketcher.Constraint("Vertical", 19, 2, 21, 2),
    Sketcher.Constraint("Vertical", 18, 2, 22, 2),
    Sketcher.Constraint("Vertical", 17, 2, 23, 2),
    Sketcher.Constraint("Vertical", 16, 2, 24, 2),
    Sketcher.Constraint("Vertical", 28, 2, 30, 2),
    Sketcher.Constraint("Vertical", 25, 2, 33, 2),
    Sketcher.Constraint("Equal", 17, 24),
    Sketcher.Constraint("DistanceY", 5, 1, 5, 2, 3.5),
    Sketcher.Constraint("DistanceY", -1, 1, 16, 2, 5.210999),
    Sketcher.Constraint("DistanceY", -1, 1, 20, 2, 4.335999),
    Sketcher.Constraint("DistanceX", 19, 2, 18, 2, 0.311999),
    Sketcher.Constraint("DistanceX", 2, 1, 2, 2, 0.717949),
    Sketcher.Constraint("DistanceX", -1, 1, 18, 2, 16.873801),
    Sketcher.Constraint("DistanceX", 1, 2, 0, 2, 0.3751),
    Sketcher.Constraint("DistanceY", 22, 2, 20, 2, 0.688502),
    Sketcher.Constraint("DistanceX", 20, 2, 26, 2, 0.374399),
    Sketcher.Constraint("Distance", 17, 0.696059),
    Sketcher.Constraint("Distance", 23, 0.725741),
    Sketcher.Constraint("Distance", 27, 0.716942),
    Sketcher.Constraint("Distance", 28, 0.57726),
    Sketcher.Constraint("DistanceX", 0, 2, 0, 1, 0.971054),
    Sketcher.Constraint("DistanceX", 16, 2, 16, 1, 0.583333),
    Sketcher.Constraint("DistanceY", 3, 2, 3, 1, 2.916667),
    Sketcher.Constraint("DistanceX", -1, 1, 4, 2, 12.792571),
    Sketcher.Constraint("DistanceX", -1, 1, 16, 2, 17.234879),
    Sketcher.Constraint("DistanceY", -1, 1, 18, 2, 5.03642),
    Sketcher.Constraint("DistanceX", -1, 1, 20, 2, 17.279751),
    Sketcher.Constraint("DistanceX", -1, 1, 31, 2, 18.215748),
    Sketcher.Constraint("DistanceX", -1, 1, 32, 2, 17.672379),
    Sketcher.Constraint("DistanceY", 30, 2, 31, 2, 0.476062),
])
pad5 = body.newObject("PartDesign::Pad", "Pad004")
pad5.Profile = sketch9
pad5.Length = 0.25

doc.recompute()
